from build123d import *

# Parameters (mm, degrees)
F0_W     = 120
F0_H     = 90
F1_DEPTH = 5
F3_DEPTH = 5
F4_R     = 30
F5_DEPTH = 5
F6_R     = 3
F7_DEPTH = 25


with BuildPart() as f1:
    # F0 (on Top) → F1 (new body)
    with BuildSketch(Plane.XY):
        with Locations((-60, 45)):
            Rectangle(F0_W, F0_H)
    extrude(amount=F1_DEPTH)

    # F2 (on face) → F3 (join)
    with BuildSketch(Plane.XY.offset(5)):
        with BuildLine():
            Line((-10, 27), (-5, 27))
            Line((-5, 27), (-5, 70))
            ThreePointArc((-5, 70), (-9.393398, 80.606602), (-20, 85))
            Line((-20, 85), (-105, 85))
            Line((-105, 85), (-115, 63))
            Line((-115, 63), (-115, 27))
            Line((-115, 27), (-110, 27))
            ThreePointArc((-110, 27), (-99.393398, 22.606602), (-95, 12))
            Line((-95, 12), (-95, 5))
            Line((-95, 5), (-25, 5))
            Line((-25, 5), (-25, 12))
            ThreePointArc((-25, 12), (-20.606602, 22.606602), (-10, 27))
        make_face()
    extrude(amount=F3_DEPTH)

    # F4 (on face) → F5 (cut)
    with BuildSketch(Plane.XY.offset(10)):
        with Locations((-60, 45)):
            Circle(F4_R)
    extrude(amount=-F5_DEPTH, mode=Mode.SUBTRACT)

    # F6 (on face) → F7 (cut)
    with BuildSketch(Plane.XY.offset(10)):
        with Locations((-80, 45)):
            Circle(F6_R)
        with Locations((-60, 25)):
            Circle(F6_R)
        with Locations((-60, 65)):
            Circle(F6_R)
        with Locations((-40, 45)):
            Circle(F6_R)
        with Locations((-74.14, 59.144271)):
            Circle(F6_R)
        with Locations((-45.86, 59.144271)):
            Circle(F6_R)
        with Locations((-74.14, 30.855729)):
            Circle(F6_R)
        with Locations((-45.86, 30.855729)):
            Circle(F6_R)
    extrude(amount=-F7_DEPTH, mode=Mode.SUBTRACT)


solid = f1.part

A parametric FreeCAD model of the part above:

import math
import FreeCAD as App
import Part
import Sketcher

doc = App.newDocument("Part")
body = doc.addObject("PartDesign::Body", "Body")

sketch1 = body.newObject("Sketcher::SketchObject", "Sketch")
sketch1.AttachmentSupport = (doc.getObject("XY_Plane"), [""])
sketch1.MapMode = "FlatFace"
sketch1.addGeometry([
    Part.LineSegment(App.Vector(-120, 90, 0), App.Vector(-120, 0, 0)),
    Part.LineSegment(App.Vector(-120, 0, 0), App.Vector(0, 0, 0)),
    Part.LineSegment(App.Vector(0, 0, 0), App.Vector(0, 90, 0)),
    Part.LineSegment(App.Vector(0, 90, 0), App.Vector(-120, 90, 0)),
], False)
sketch1.addConstraint([
    Sketcher.Constraint("Coincident", 0, 2, 1, 1),
    Sketcher.Constraint("Coincident", 1, 2, 2, 1),
    Sketcher.Constraint("Coincident", 2, 2, 3, 1),
    Sketcher.Constraint("Coincident", 3, 2, 0, 1),
    Sketcher.Constraint("Vertical", 0),
    Sketcher.Constraint("Horizontal", 1),
    Sketcher.Constraint("Vertical", 2),
    Sketcher.Constraint("Horizontal", 3),
    Sketcher.Constraint("Coincident", 1, 2, -1, 1),
    Sketcher.Constraint("DistanceX", 1, 1, 1, 2, 120.0),
    Sketcher.Constraint("DistanceY", 0, 2, 0, 1, 90.0),
])
pad1 = body.newObject("PartDesign::Pad", "Pad")
pad1.Profile = sketch1
pad1.Length = 5

sketch2 = body.newObject("Sketcher::SketchObject", "Sketch001")
sketch2.AttachmentSupport = (doc.getObject("XY_Plane"), [""])
sketch2.MapMode = "FlatFace"
sketch2.AttachmentOffset = App.Placement(App.Vector(0, 0, 5), App.Rotation())
sketch2.addGeometry([
    Part.LineSegment(App.Vector(-10, 27, 0), App.Vector(-5, 27, 0)),
    Part.LineSegment(App.Vector(-5, 27, 0), App.Vector(-5, 70, 0)),
    Part.ArcOfCircle(Part.Circle(App.Vector(-20, 70, 0), App.Vector(0, 0, 1), 15), math.radians(0), math.radians(90)),
    Part.LineSegment(App.Vector(-20, 85, 0), App.Vector(-105, 85, 0)),
    Part.LineSegment(App.Vector(-105, 85, 0), App.Vector(-115, 63, 0)),
    Part.LineSegment(App.Vector(-115, 63, 0), App.Vector(-115, 27, 0)),
    Part.LineSegment(App.Vector(-115, 27, 0), App.Vector(-110, 27, 0)),
    Part.ArcOfCircle(Part.Circle(App.Vector(-110, 12, 0), App.Vector(0, 0, 1), 15), math.radians(0), math.radians(90)),
    Part.LineSegment(App.Vector(-95, 12, 0), App.Vector(-95, 5, 0)),
    Part.LineSegment(App.Vector(-95, 5, 0), App.Vector(-25, 5, 0)),
    Part.LineSegment(App.Vector(-25, 5, 0), App.Vector(-25, 12, 0)),
    Part.ArcOfCircle(Part.Circle(App.Vector(-10, 12, 0), App.Vector(0, 0, 1), 15), math.radians(90), math.radians(180)),
], False)
sketch2.addConstraint([
    Sketcher.Constraint("Coincident", 0, 2, 1, 1),
    Sketcher.Constraint("Tangent", 1, 2, 2, 1),
    Sketcher.Constraint("Tangent", 2, 2, 3, 1),
    Sketcher.Constraint("Coincident", 3, 2, 4, 1),
    Sketcher.Constraint("Coincident", 4, 2, 5, 1),
    Sketcher.Constraint("Coincident", 5, 2, 6, 1),
    Sketcher.Constraint("Tangent", 6, 2, 7, 2),
    Sketcher.Constraint("Tangent", 7, 1, 8, 1),
    Sketcher.Constraint("Coincident", 8, 2, 9, 1),
    Sketcher.Constraint("Coincident", 9, 2, 10, 1),
    Sketcher.Constraint("Tangent", 10, 2, 11, 2),
    Sketcher.Constraint("Tangent", 11, 1, 0, 1),
    Sketcher.Constraint("Horizontal", 0),
    Sketcher.Constraint("Vertical", 1),
    Sketcher.Constraint("Horizontal", 3),
    Sketcher.Constraint("Vertical", 5),
    Sketcher.Constraint("Horizontal", 6),
    Sketcher.Constraint("Vertical", 8),
    Sketcher.Constraint("Horizontal", 9),
    Sketcher.Constraint("Vertical", 10),
    Sketcher.Constraint("Equal", 2, 7),
    Sketcher.Constraint("Equal", 7, 11),
    Sketcher.Constraint("Horizontal", 7, 3, 11, 3),
    Sketcher.Constraint("Equal", 0, 6),
    Sketcher.Constraint("Radius", 2, 14.999999),
    Sketcher.Constraint("DistanceX", 0, 1, 0, 2, 5.0),
    Sketcher.Constraint("DistanceX", 3, 2, 3, 1, 85.0),
    Sketcher.Constraint("DistanceX", 9, 1, 9, 2, 70.0),
    Sketcher.Constraint("DistanceY", 1, 1, 1, 2, 43.0),
    Sketcher.Constraint("DistanceY", 5, 2, 5, 1, 36.0),
    Sketcher.Constraint("DistanceY", 8, 2, 8, 1, 7.0),
    Sketcher.Constraint("DistanceX", 2, 3, -1, 1, 19.999999),
    Sketcher.Constraint("DistanceY", -1, 1, 2, 3, 70.000001),
])
pad2 = body.newObject("PartDesign::Pad", "Pad001")
pad2.Profile = sketch2
pad2.Length = 5

sketch3 = body.newObject("Sketcher::SketchObject", "Sketch002")
sketch3.AttachmentSupport = (doc.getObject("XY_Plane"), [""])
sketch3.MapMode = "FlatFace"
sketch3.AttachmentOffset = App.Placement(App.Vector(0, 0, 10), App.Rotation())
sketch3.addGeometry(Part.Circle(App.Vector(-60, 45, 0), App.Vector(0, 0, 1), 30), False)
sketch3.addConstraint([
    Sketcher.Constraint("Diameter", 0, 60.0),
    Sketcher.Constraint("DistanceX", 0, 3, -1, 1, 60.0),
    Sketcher.Constraint("DistanceY", -1, 1, 0, 3, 45.0),
])
pocket1 = body.newObject("PartDesign::Pocket", "Pocket")
pocket1.Profile = sketch3
pocket1.Length = 5

sketch4 = body.newObject("Sketcher::SketchObject", "Sketch003")
sketch4.AttachmentSupport = (doc.getObject("XY_Plane"), [""])
sketch4.MapMode = "FlatFace"
sketch4.AttachmentOffset = App.Placement(App.Vector(0, 0, 10), App.Rotation())
sketch4.addGeometry([
    Part.Circle(App.Vector(-80, 45, 0), App.Vector(0, 0, 1), 3),
    Part.Circle(App.Vector(-60, 25, 0), App.Vector(0, 0, 1), 3),
    Part.Circle(App.Vector(-60, 65, 0), App.Vector(0, 0, 1), 3),
    Part.Circle(App.Vector(-40, 45, 0), App.Vector(0, 0, 1), 3),
    Part.Circle(App.Vector(-74.1, 59.1, 0), App.Vector(0, 0, 1), 3),
    Part.Circle(App.Vector(-45.9, 59.1, 0), App.Vector(0, 0, 1), 3),
    Part.Circle(App.Vector(-74.1, 30.9, 0), App.Vector(0, 0, 1), 3),
    Part.Circle(App.Vector(-45.9, 30.9, 0), App.Vector(0, 0, 1), 3),
], False)
sketch4.addConstraint([
    Sketcher.Constraint("Equal", 0, 1),
    Sketcher.Constraint("Equal", 1, 2),
    Sketcher.Constraint("Equal", 2, 3),
    Sketcher.Constraint("Equal", 3, 4),
    Sketcher.Constraint("Equal", 4, 5),
    Sketcher.Constraint("Equal", 5, 6),
    Sketcher.Constraint("Equal", 6, 7),
    Sketcher.Constraint("Horizontal", 0, 3, 3, 3),
    Sketcher.Constraint("Horizontal", 4, 3, 5, 3),
    Sketcher.Constraint("Horizontal", 6, 3, 7, 3),
    Sketcher.Constraint("Vertical", 1, 3, 2, 3),
    Sketcher.Constraint("Vertical", 4, 3, 6, 3),
    Sketcher.Constraint("Vertical", 5, 3, 7, 3),
    Sketcher.Constraint("Diameter", 0, 6.0),
    Sketcher.Constraint("DistanceX", 0, 3, -1, 1, 80.0),
    Sketcher.Constraint("DistanceY", -1, 1, 0, 3, 45.0),
    Sketcher.Constraint("DistanceX", 1, 3, -1, 1, 60.0),
    Sketcher.Constraint("DistanceY", -1, 1, 1, 3, 25.0),
    Sketcher.Constraint("DistanceY", -1, 1, 2, 3, 65.0),
    Sketcher.Constraint("DistanceX", 3, 3, -1, 1, 40.0),
    Sketcher.Constraint("DistanceX", 4, 3, -1, 1, 74.14),
    Sketcher.Constraint("DistanceX", 5, 3, -1, 1, 45.86),
    Sketcher.Constraint("DistanceY", -1, 1, 4, 3, 59.144271),
    Sketcher.Constraint("DistanceY", -1, 1, 6, 3, 30.855729),
])
pocket2 = body.newObject("PartDesign::Pocket", "Pocket001")
pocket2.Profile = sketch4
pocket2.Length = 25

doc.recompute()
